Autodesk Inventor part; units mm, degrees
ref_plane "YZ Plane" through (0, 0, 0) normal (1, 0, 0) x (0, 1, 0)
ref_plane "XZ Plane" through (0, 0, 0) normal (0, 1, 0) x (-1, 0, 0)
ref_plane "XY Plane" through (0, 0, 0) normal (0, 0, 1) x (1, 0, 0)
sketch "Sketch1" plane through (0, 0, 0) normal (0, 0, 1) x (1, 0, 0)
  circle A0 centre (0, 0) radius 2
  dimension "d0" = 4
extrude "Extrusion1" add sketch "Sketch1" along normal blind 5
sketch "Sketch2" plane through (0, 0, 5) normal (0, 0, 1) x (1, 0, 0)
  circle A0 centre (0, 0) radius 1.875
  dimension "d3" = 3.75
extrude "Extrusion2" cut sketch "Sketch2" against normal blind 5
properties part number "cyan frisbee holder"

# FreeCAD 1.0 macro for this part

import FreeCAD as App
import Part
import Sketcher
Q = App.Units.Quantity

doc = App.newDocument("Part")
body = doc.addObject("PartDesign::Body", "Body")

# Sketch on XY plane
sketch1 = doc.addObject("Sketcher::SketchObject", "Sketch")
body.addObject(sketch1)
sketch1.AttachmentSupport = (doc.XY_Plane, [""])
sketch1.MapMode = "FlatFace"
sketch1.addGeometry(Part.Circle(App.Vector(0, 0, 0), App.Vector(0, 0, 1), 2), False)
sketch1.addConstraint([
    Sketcher.Constraint("Coincident", 0, 3, -1, 1),
    Sketcher.Constraint("Diameter", 0, Q("4 mm")),
])
pad1 = doc.addObject("PartDesign::Pad", "Pad")
body.addObject(pad1)
pad1.Profile = sketch1
pad1.Length = 5

# Sketch on XY plane
sketch2 = doc.addObject("Sketcher::SketchObject", "Sketch001")
body.addObject(sketch2)
sketch2.AttachmentSupport = (doc.XY_Plane, [""])
sketch2.MapMode = "FlatFace"
sketch2.AttachmentOffset = App.Placement(App.Vector(0, 0, 5), App.Rotation())
sketch2.addGeometry(Part.Circle(App.Vector(0, 0, 0), App.Vector(0, 0, 1), 1.9), False)
sketch2.addConstraint([
    Sketcher.Constraint("Coincident", 0, 3, -1, 1),
    Sketcher.Constraint("Diameter", 0, Q("3.75 mm")),
])
pocket1 = doc.addObject("PartDesign::Pocket", "Pocket")
body.addObject(pocket1)
pocket1.Profile = sketch2
pocket1.Length = 5

doc.recompute()
